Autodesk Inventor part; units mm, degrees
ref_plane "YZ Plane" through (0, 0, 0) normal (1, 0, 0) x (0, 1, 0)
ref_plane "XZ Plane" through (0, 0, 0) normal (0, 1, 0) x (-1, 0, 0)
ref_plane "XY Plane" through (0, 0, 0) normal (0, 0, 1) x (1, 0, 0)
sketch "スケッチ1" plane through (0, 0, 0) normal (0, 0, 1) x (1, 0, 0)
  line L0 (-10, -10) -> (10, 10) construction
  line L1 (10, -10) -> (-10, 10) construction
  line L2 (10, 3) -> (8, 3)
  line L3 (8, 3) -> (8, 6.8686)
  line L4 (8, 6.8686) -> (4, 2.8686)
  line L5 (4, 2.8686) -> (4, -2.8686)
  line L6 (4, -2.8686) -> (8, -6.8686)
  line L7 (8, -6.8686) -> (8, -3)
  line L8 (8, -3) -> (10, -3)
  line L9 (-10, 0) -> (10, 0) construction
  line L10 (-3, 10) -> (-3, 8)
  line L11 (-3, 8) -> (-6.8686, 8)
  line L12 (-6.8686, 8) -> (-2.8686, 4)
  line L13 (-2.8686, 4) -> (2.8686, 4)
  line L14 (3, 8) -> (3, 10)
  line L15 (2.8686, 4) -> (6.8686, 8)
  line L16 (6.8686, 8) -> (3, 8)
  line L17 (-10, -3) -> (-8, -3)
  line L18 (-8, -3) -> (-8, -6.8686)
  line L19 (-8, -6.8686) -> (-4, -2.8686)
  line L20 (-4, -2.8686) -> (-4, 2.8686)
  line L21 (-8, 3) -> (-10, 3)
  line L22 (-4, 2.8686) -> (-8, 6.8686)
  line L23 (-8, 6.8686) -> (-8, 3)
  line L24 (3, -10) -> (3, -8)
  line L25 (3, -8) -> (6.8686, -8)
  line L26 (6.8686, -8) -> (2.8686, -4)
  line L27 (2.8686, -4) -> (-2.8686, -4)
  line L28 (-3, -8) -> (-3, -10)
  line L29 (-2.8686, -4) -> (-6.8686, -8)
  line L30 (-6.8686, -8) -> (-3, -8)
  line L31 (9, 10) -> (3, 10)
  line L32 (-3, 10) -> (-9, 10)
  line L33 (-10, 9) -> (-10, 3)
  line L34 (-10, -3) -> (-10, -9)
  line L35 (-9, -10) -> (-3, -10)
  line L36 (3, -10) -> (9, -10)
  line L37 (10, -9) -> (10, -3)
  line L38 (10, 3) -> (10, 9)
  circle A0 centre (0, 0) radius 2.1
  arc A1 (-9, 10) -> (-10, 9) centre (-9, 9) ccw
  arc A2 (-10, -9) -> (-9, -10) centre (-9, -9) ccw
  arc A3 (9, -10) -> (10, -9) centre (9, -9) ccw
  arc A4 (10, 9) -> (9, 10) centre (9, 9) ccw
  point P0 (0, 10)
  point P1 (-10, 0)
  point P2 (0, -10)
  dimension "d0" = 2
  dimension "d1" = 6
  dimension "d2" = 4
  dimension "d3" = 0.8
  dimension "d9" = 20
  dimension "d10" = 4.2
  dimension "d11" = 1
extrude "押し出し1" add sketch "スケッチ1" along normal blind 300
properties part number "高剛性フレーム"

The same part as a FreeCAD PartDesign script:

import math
import FreeCAD as App
import Part
import Sketcher
from FreeCAD import Vector
Q = App.Units.Quantity

doc = App.newDocument("Part")
body = doc.addObject("PartDesign::Body", "Body")

sketch1 = body.newObject("Sketcher::SketchObject", "Sketch")
sketch1.AttachmentSupport = (doc.getObject("XY_Plane"), [""])
sketch1.MapMode = "FlatFace"
sketch1.addGeometry(Part.LineSegment(Vector(8, 3, 0), Vector(10, 3, 0)), False)
sketch1.addGeometry(Part.LineSegment(Vector(10, 3, 0), Vector(10, 9, 0)), False)
sketch1.addGeometry(Part.ArcOfCircle(Part.Circle(Vector(9, 9, 0), Vector(0, 0, 1), 1), math.radians(0), math.radians(90)), False)
sketch1.addGeometry(Part.LineSegment(Vector(9, 10, 0), Vector(3, 10, 0)), False)
sketch1.addGeometry(Part.LineSegment(Vector(3, 10, 0), Vector(3, 8, 0)), False)
sketch1.addGeometry(Part.LineSegment(Vector(3, 8, 0), Vector(6.9, 8, 0)), False)
sketch1.addGeometry(Part.LineSegment(Vector(6.9, 8, 0), Vector(2.9, 4, 0)), False)
sketch1.addGeometry(Part.LineSegment(Vector(2.9, 4, 0), Vector(-2.9, 4, 0)), False)
sketch1.addGeometry(Part.LineSegment(Vector(-2.9, 4, 0), Vector(-6.9, 8, 0)), False)
sketch1.addGeometry(Part.LineSegment(Vector(-6.9, 8, 0), Vector(-3, 8, 0)), False)
sketch1.addGeometry(Part.LineSegment(Vector(-3, 8, 0), Vector(-3, 10, 0)), False)
sketch1.addGeometry(Part.LineSegment(Vector(-3, 10, 0), Vector(-9, 10, 0)), False)
sketch1.addGeometry(Part.ArcOfCircle(Part.Circle(Vector(-9, 9, 0), Vector(0, 0, 1), 1), math.radians(90), math.radians(180)), False)
sketch1.addGeometry(Part.LineSegment(Vector(-10, 9, 0), Vector(-10, 3, 0)), False)
sketch1.addGeometry(Part.LineSegment(Vector(-10, 3, 0), Vector(-8, 3, 0)), False)
sketch1.addGeometry(Part.LineSegment(Vector(-8, 3, 0), Vector(-8, 6.9, 0)), False)
sketch1.addGeometry(Part.LineSegment(Vector(-8, 6.9, 0), Vector(-4, 2.9, 0)), False)
sketch1.addGeometry(Part.LineSegment(Vector(-4, 2.9, 0), Vector(-4, -2.9, 0)), False)
sketch1.addGeometry(Part.LineSegment(Vector(-4, -2.9, 0), Vector(-8, -6.9, 0)), False)
sketch1.addGeometry(Part.LineSegment(Vector(-8, -6.9, 0), Vector(-8, -3, 0)), False)
sketch1.addGeometry(Part.LineSegment(Vector(-8, -3, 0), Vector(-10, -3, 0)), False)
sketch1.addGeometry(Part.LineSegment(Vector(-10, -3, 0), Vector(-10, -9, 0)), False)
sketch1.addGeometry(Part.ArcOfCircle(Part.Circle(Vector(-9, -9, 0), Vector(0, 0, 1), 1), math.radians(180), math.radians(270)), False)
sketch1.addGeometry(Part.LineSegment(Vector(-9, -10, 0), Vector(-3, -10, 0)), False)
sketch1.addGeometry(Part.LineSegment(Vector(-3, -10, 0), Vector(-3, -8, 0)), False)
sketch1.addGeometry(Part.LineSegment(Vector(-3, -8, 0), Vector(-6.9, -8, 0)), False)
sketch1.addGeometry(Part.LineSegment(Vector(-6.9, -8, 0), Vector(-2.9, -4, 0)), False)
sketch1.addGeometry(Part.LineSegment(Vector(-2.9, -4, 0), Vector(2.9, -4, 0)), False)
sketch1.addGeometry(Part.LineSegment(Vector(2.9, -4, 0), Vector(6.9, -8, 0)), False)
sketch1.addGeometry(Part.LineSegment(Vector(6.9, -8, 0), Vector(3, -8, 0)), False)
sketch1.addGeometry(Part.LineSegment(Vector(3, -8, 0), Vector(3, -10, 0)), False)
sketch1.addGeometry(Part.LineSegment(Vector(3, -10, 0), Vector(9, -10, 0)), False)
sketch1.addGeometry(Part.ArcOfCircle(Part.Circle(Vector(9, -9, 0), Vector(0, 0, 1), 1), math.radians(-90), math.radians(0)), False)
sketch1.addGeometry(Part.LineSegment(Vector(10, -9, 0), Vector(10, -3, 0)), False)
sketch1.addGeometry(Part.LineSegment(Vector(10, -3, 0), Vector(8, -3, 0)), False)
sketch1.addGeometry(Part.LineSegment(Vector(8, -3, 0), Vector(8, -6.9, 0)), False)
sketch1.addGeometry(Part.LineSegment(Vector(8, -6.9, 0), Vector(4, -2.9, 0)), False)
sketch1.addGeometry(Part.LineSegment(Vector(4, -2.9, 0), Vector(4, 2.9, 0)), False)
sketch1.addGeometry(Part.LineSegment(Vector(4, 2.9, 0), Vector(8, 6.9, 0)), False)
sketch1.addGeometry(Part.LineSegment(Vector(8, 6.9, 0), Vector(8, 3, 0)), False)
sketch1.addGeometry(Part.Circle(Vector(0, 0, 0), Vector(0, 0, 1), 2.1), False)
sketch1.addConstraint(Sketcher.Constraint("Coincident", 0, 2, 1, 1))
sketch1.addConstraint(Sketcher.Constraint("Tangent", 1, 2, 2, 1))
sketch1.addConstraint(Sketcher.Constraint("Tangent", 2, 2, 3, 1))
sketch1.addConstraint(Sketcher.Constraint("Coincident", 3, 2, 4, 1))
sketch1.addConstraint(Sketcher.Constraint("Coincident", 4, 2, 5, 1))
sketch1.addConstraint(Sketcher.Constraint("Coincident", 5, 2, 6, 1))
sketch1.addConstraint(Sketcher.Constraint("Coincident", 6, 2, 7, 1))
sketch1.addConstraint(Sketcher.Constraint("Coincident", 7, 2, 8, 1))
sketch1.addConstraint(Sketcher.Constraint("Coincident", 8, 2, 9, 1))
sketch1.addConstraint(Sketcher.Constraint("Coincident", 9, 2, 10, 1))
sketch1.addConstraint(Sketcher.Constraint("Coincident", 10, 2, 11, 1))
sketch1.addConstraint(Sketcher.Constraint("Tangent", 11, 2, 12, 1))
sketch1.addConstraint(Sketcher.Constraint("Tangent", 12, 2, 13, 1))
sketch1.addConstraint(Sketcher.Constraint("Coincident", 13, 2, 14, 1))
sketch1.addConstraint(Sketcher.Constraint("Coincident", 14, 2, 15, 1))
sketch1.addConstraint(Sketcher.Constraint("Coincident", 15, 2, 16, 1))
sketch1.addConstraint(Sketcher.Constraint("Coincident", 16, 2, 17, 1))
sketch1.addConstraint(Sketcher.Constraint("Coincident", 17, 2, 18, 1))
sketch1.addConstraint(Sketcher.Constraint("Coincident", 18, 2, 19, 1))
sketch1.addConstraint(Sketcher.Constraint("Coincident", 19, 2, 20, 1))
sketch1.addConstraint(Sketcher.Constraint("Coincident", 20, 2, 21, 1))
sketch1.addConstraint(Sketcher.Constraint("Tangent", 21, 2, 22, 1))
sketch1.addConstraint(Sketcher.Constraint("Tangent", 22, 2, 23, 1))
sketch1.addConstraint(Sketcher.Constraint("Coincident", 23, 2, 24, 1))
sketch1.addConstraint(Sketcher.Constraint("Coincident", 24, 2, 25, 1))
sketch1.addConstraint(Sketcher.Constraint("Coincident", 25, 2, 26, 1))
sketch1.addConstraint(Sketcher.Constraint("Coincident", 26, 2, 27, 1))
sketch1.addConstraint(Sketcher.Constraint("Coincident", 27, 2, 28, 1))
sketch1.addConstraint(Sketcher.Constraint("Coincident", 28, 2, 29, 1))
sketch1.addConstraint(Sketcher.Constraint("Coincident", 29, 2, 30, 1))
sketch1.addConstraint(Sketcher.Constraint("Coincident", 30, 2, 31, 1))
sketch1.addConstraint(Sketcher.Constraint("Tangent", 31, 2, 32, 1))
sketch1.addConstraint(Sketcher.Constraint("Tangent", 32, 2, 33, 1))
sketch1.addConstraint(Sketcher.Constraint("Coincident", 33, 2, 34, 1))
sketch1.addConstraint(Sketcher.Constraint("Coincident", 34, 2, 35, 1))
sketch1.addConstraint(Sketcher.Constraint("Coincident", 35, 2, 36, 1))
sketch1.addConstraint(Sketcher.Constraint("Coincident", 36, 2, 37, 1))
sketch1.addConstraint(Sketcher.Constraint("Coincident", 37, 2, 38, 1))
sketch1.addConstraint(Sketcher.Constraint("Coincident", 38, 2, 39, 1))
sketch1.addConstraint(Sketcher.Constraint("Coincident", 39, 2, 0, 1))
sketch1.addConstraint(Sketcher.Constraint("Horizontal", 0))
sketch1.addConstraint(Sketcher.Constraint("Vertical", 1))
sketch1.addConstraint(Sketcher.Constraint("Horizontal", 3))
sketch1.addConstraint(Sketcher.Constraint("Vertical", 4))
sketch1.addConstraint(Sketcher.Constraint("Horizontal", 5))
sketch1.addConstraint(Sketcher.Constraint("Horizontal", 7))
sketch1.addConstraint(Sketcher.Constraint("Horizontal", 9))
sketch1.addConstraint(Sketcher.Constraint("Vertical", 10))
sketch1.addConstraint(Sketcher.Constraint("Horizontal", 11))
sketch1.addConstraint(Sketcher.Constraint("Vertical", 13))
sketch1.addConstraint(Sketcher.Constraint("Horizontal", 14))
sketch1.addConstraint(Sketcher.Constraint("Vertical", 15))
sketch1.addConstraint(Sketcher.Constraint("Vertical", 17))
sketch1.addConstraint(Sketcher.Constraint("Vertical", 19))
sketch1.addConstraint(Sketcher.Constraint("Horizontal", 20))
sketch1.addConstraint(Sketcher.Constraint("Vertical", 21))
sketch1.addConstraint(Sketcher.Constraint("Horizontal", 23))
sketch1.addConstraint(Sketcher.Constraint("Vertical", 24))
sketch1.addConstraint(Sketcher.Constraint("Horizontal", 25))
sketch1.addConstraint(Sketcher.Constraint("Horizontal", 27))
sketch1.addConstraint(Sketcher.Constraint("Horizontal", 29))
sketch1.addConstraint(Sketcher.Constraint("Vertical", 30))
sketch1.addConstraint(Sketcher.Constraint("Horizontal", 31))
sketch1.addConstraint(Sketcher.Constraint("Vertical", 33))
sketch1.addConstraint(Sketcher.Constraint("Horizontal", 34))
sketch1.addConstraint(Sketcher.Constraint("Vertical", 35))
sketch1.addConstraint(Sketcher.Constraint("Vertical", 37))
sketch1.addConstraint(Sketcher.Constraint("Vertical", 39))
sketch1.addConstraint(Sketcher.Constraint("Coincident", 40, 3, -1, 1))
sketch1.addConstraint(Sketcher.Constraint("Equal", 2, 12))
sketch1.addConstraint(Sketcher.Constraint("Equal", 12, 22))
sketch1.addConstraint(Sketcher.Constraint("Equal", 22, 32))
sketch1.addConstraint(Sketcher.Constraint("Symmetric", 2, 3, 22, 3, -1, 1))
sketch1.addConstraint(Sketcher.Constraint("Symmetric", 12, 3, 32, 3, -1, 1))
sketch1.addConstraint(Sketcher.Constraint("Symmetric", 4, 2, 24, 2, -1, 1))
sketch1.addConstraint(Sketcher.Constraint("Symmetric", 6, 2, 26, 2, -1, 1))
sketch1.addConstraint(Sketcher.Constraint("Symmetric", 8, 2, 28, 2, -1, 1))
sketch1.addConstraint(Sketcher.Constraint("Symmetric", 14, 2, 34, 2, -1, 1))
sketch1.addConstraint(Sketcher.Constraint("Symmetric", 16, 2, 36, 2, -1, 1))
sketch1.addConstraint(Sketcher.Constraint("Symmetric", 18, 2, 38, 2, -1, 1))
sketch1.addConstraint(Sketcher.Constraint("Symmetric", 2, 3, 12, 3, -2))
sketch1.addConstraint(Sketcher.Constraint("Symmetric", 5, 2, 8, 2, -2))
sketch1.addConstraint(Sketcher.Constraint("Symmetric", 19, 2, 34, 2, -2))
sketch1.addConstraint(Sketcher.Constraint("Perpendicular", 6, 8))
sketch1.addConstraint(Sketcher.Constraint("Parallel", 8, 16))
sketch1.addConstraint(Sketcher.Constraint("Perpendicular", 16, 18))
sketch1.addConstraint(Sketcher.Constraint("Parallel", 18, 26))
sketch1.addConstraint(Sketcher.Constraint("Perpendicular", 26, 28))
sketch1.addConstraint(Sketcher.Constraint("Parallel", 28, 36))
sketch1.addConstraint(Sketcher.Constraint("Perpendicular", 36, 38))
sketch1.addConstraint(Sketcher.Constraint("Horizontal", 0, 2, 13, 2))
sketch1.addConstraint(Sketcher.Constraint("Horizontal", 18, 2, 35, 2))
sketch1.addConstraint(Sketcher.Constraint("Horizontal", 17, 2, 36, 2))
sketch1.addConstraint(Sketcher.Constraint("Vertical", 10, 2, 23, 2))
sketch1.addConstraint(Sketcher.Constraint("Vertical", 4, 2, 29, 2))
sketch1.addConstraint(Sketcher.Constraint("Equal", 31, 1))
sketch1.addConstraint(Sketcher.Constraint("Equal", 34, 4))
sketch1.addConstraint(Sketcher.Constraint("Equal", 29, 15))
sketch1.addConstraint(Sketcher.Constraint("Equal", 27, 17))
sketch1.addConstraint(Sketcher.Constraint("Equal", 8, 16))
sketch1.addConstraint(Sketcher.Constraint("Radius", 2, Q("1 mm")))
sketch1.addConstraint(Sketcher.Constraint("Diameter", 40, Q("4.2 mm")))
sketch1.addConstraint(Sketcher.Constraint("DistanceX", 0, 1, 0, 2, Q("2 mm")))
sketch1.addConstraint(Sketcher.Constraint("DistanceX", 3, 2, 3, 1, Q("6 mm")))
sketch1.addConstraint(Sketcher.Constraint("DistanceY", -1, 1, 6, 2, Q("4 mm")))
sketch1.addConstraint(Sketcher.Constraint("DistanceY", 6, 2, 4, 2, Q("4 mm")))
sketch1.addConstraint(Sketcher.Constraint("DistanceX", 5, 1, 5, 2, Q("3.8686 mm")))
pad1 = body.newObject("PartDesign::Pad", "Pad")
pad1.Profile = sketch1
pad1.Length = 300

doc.recompute()
